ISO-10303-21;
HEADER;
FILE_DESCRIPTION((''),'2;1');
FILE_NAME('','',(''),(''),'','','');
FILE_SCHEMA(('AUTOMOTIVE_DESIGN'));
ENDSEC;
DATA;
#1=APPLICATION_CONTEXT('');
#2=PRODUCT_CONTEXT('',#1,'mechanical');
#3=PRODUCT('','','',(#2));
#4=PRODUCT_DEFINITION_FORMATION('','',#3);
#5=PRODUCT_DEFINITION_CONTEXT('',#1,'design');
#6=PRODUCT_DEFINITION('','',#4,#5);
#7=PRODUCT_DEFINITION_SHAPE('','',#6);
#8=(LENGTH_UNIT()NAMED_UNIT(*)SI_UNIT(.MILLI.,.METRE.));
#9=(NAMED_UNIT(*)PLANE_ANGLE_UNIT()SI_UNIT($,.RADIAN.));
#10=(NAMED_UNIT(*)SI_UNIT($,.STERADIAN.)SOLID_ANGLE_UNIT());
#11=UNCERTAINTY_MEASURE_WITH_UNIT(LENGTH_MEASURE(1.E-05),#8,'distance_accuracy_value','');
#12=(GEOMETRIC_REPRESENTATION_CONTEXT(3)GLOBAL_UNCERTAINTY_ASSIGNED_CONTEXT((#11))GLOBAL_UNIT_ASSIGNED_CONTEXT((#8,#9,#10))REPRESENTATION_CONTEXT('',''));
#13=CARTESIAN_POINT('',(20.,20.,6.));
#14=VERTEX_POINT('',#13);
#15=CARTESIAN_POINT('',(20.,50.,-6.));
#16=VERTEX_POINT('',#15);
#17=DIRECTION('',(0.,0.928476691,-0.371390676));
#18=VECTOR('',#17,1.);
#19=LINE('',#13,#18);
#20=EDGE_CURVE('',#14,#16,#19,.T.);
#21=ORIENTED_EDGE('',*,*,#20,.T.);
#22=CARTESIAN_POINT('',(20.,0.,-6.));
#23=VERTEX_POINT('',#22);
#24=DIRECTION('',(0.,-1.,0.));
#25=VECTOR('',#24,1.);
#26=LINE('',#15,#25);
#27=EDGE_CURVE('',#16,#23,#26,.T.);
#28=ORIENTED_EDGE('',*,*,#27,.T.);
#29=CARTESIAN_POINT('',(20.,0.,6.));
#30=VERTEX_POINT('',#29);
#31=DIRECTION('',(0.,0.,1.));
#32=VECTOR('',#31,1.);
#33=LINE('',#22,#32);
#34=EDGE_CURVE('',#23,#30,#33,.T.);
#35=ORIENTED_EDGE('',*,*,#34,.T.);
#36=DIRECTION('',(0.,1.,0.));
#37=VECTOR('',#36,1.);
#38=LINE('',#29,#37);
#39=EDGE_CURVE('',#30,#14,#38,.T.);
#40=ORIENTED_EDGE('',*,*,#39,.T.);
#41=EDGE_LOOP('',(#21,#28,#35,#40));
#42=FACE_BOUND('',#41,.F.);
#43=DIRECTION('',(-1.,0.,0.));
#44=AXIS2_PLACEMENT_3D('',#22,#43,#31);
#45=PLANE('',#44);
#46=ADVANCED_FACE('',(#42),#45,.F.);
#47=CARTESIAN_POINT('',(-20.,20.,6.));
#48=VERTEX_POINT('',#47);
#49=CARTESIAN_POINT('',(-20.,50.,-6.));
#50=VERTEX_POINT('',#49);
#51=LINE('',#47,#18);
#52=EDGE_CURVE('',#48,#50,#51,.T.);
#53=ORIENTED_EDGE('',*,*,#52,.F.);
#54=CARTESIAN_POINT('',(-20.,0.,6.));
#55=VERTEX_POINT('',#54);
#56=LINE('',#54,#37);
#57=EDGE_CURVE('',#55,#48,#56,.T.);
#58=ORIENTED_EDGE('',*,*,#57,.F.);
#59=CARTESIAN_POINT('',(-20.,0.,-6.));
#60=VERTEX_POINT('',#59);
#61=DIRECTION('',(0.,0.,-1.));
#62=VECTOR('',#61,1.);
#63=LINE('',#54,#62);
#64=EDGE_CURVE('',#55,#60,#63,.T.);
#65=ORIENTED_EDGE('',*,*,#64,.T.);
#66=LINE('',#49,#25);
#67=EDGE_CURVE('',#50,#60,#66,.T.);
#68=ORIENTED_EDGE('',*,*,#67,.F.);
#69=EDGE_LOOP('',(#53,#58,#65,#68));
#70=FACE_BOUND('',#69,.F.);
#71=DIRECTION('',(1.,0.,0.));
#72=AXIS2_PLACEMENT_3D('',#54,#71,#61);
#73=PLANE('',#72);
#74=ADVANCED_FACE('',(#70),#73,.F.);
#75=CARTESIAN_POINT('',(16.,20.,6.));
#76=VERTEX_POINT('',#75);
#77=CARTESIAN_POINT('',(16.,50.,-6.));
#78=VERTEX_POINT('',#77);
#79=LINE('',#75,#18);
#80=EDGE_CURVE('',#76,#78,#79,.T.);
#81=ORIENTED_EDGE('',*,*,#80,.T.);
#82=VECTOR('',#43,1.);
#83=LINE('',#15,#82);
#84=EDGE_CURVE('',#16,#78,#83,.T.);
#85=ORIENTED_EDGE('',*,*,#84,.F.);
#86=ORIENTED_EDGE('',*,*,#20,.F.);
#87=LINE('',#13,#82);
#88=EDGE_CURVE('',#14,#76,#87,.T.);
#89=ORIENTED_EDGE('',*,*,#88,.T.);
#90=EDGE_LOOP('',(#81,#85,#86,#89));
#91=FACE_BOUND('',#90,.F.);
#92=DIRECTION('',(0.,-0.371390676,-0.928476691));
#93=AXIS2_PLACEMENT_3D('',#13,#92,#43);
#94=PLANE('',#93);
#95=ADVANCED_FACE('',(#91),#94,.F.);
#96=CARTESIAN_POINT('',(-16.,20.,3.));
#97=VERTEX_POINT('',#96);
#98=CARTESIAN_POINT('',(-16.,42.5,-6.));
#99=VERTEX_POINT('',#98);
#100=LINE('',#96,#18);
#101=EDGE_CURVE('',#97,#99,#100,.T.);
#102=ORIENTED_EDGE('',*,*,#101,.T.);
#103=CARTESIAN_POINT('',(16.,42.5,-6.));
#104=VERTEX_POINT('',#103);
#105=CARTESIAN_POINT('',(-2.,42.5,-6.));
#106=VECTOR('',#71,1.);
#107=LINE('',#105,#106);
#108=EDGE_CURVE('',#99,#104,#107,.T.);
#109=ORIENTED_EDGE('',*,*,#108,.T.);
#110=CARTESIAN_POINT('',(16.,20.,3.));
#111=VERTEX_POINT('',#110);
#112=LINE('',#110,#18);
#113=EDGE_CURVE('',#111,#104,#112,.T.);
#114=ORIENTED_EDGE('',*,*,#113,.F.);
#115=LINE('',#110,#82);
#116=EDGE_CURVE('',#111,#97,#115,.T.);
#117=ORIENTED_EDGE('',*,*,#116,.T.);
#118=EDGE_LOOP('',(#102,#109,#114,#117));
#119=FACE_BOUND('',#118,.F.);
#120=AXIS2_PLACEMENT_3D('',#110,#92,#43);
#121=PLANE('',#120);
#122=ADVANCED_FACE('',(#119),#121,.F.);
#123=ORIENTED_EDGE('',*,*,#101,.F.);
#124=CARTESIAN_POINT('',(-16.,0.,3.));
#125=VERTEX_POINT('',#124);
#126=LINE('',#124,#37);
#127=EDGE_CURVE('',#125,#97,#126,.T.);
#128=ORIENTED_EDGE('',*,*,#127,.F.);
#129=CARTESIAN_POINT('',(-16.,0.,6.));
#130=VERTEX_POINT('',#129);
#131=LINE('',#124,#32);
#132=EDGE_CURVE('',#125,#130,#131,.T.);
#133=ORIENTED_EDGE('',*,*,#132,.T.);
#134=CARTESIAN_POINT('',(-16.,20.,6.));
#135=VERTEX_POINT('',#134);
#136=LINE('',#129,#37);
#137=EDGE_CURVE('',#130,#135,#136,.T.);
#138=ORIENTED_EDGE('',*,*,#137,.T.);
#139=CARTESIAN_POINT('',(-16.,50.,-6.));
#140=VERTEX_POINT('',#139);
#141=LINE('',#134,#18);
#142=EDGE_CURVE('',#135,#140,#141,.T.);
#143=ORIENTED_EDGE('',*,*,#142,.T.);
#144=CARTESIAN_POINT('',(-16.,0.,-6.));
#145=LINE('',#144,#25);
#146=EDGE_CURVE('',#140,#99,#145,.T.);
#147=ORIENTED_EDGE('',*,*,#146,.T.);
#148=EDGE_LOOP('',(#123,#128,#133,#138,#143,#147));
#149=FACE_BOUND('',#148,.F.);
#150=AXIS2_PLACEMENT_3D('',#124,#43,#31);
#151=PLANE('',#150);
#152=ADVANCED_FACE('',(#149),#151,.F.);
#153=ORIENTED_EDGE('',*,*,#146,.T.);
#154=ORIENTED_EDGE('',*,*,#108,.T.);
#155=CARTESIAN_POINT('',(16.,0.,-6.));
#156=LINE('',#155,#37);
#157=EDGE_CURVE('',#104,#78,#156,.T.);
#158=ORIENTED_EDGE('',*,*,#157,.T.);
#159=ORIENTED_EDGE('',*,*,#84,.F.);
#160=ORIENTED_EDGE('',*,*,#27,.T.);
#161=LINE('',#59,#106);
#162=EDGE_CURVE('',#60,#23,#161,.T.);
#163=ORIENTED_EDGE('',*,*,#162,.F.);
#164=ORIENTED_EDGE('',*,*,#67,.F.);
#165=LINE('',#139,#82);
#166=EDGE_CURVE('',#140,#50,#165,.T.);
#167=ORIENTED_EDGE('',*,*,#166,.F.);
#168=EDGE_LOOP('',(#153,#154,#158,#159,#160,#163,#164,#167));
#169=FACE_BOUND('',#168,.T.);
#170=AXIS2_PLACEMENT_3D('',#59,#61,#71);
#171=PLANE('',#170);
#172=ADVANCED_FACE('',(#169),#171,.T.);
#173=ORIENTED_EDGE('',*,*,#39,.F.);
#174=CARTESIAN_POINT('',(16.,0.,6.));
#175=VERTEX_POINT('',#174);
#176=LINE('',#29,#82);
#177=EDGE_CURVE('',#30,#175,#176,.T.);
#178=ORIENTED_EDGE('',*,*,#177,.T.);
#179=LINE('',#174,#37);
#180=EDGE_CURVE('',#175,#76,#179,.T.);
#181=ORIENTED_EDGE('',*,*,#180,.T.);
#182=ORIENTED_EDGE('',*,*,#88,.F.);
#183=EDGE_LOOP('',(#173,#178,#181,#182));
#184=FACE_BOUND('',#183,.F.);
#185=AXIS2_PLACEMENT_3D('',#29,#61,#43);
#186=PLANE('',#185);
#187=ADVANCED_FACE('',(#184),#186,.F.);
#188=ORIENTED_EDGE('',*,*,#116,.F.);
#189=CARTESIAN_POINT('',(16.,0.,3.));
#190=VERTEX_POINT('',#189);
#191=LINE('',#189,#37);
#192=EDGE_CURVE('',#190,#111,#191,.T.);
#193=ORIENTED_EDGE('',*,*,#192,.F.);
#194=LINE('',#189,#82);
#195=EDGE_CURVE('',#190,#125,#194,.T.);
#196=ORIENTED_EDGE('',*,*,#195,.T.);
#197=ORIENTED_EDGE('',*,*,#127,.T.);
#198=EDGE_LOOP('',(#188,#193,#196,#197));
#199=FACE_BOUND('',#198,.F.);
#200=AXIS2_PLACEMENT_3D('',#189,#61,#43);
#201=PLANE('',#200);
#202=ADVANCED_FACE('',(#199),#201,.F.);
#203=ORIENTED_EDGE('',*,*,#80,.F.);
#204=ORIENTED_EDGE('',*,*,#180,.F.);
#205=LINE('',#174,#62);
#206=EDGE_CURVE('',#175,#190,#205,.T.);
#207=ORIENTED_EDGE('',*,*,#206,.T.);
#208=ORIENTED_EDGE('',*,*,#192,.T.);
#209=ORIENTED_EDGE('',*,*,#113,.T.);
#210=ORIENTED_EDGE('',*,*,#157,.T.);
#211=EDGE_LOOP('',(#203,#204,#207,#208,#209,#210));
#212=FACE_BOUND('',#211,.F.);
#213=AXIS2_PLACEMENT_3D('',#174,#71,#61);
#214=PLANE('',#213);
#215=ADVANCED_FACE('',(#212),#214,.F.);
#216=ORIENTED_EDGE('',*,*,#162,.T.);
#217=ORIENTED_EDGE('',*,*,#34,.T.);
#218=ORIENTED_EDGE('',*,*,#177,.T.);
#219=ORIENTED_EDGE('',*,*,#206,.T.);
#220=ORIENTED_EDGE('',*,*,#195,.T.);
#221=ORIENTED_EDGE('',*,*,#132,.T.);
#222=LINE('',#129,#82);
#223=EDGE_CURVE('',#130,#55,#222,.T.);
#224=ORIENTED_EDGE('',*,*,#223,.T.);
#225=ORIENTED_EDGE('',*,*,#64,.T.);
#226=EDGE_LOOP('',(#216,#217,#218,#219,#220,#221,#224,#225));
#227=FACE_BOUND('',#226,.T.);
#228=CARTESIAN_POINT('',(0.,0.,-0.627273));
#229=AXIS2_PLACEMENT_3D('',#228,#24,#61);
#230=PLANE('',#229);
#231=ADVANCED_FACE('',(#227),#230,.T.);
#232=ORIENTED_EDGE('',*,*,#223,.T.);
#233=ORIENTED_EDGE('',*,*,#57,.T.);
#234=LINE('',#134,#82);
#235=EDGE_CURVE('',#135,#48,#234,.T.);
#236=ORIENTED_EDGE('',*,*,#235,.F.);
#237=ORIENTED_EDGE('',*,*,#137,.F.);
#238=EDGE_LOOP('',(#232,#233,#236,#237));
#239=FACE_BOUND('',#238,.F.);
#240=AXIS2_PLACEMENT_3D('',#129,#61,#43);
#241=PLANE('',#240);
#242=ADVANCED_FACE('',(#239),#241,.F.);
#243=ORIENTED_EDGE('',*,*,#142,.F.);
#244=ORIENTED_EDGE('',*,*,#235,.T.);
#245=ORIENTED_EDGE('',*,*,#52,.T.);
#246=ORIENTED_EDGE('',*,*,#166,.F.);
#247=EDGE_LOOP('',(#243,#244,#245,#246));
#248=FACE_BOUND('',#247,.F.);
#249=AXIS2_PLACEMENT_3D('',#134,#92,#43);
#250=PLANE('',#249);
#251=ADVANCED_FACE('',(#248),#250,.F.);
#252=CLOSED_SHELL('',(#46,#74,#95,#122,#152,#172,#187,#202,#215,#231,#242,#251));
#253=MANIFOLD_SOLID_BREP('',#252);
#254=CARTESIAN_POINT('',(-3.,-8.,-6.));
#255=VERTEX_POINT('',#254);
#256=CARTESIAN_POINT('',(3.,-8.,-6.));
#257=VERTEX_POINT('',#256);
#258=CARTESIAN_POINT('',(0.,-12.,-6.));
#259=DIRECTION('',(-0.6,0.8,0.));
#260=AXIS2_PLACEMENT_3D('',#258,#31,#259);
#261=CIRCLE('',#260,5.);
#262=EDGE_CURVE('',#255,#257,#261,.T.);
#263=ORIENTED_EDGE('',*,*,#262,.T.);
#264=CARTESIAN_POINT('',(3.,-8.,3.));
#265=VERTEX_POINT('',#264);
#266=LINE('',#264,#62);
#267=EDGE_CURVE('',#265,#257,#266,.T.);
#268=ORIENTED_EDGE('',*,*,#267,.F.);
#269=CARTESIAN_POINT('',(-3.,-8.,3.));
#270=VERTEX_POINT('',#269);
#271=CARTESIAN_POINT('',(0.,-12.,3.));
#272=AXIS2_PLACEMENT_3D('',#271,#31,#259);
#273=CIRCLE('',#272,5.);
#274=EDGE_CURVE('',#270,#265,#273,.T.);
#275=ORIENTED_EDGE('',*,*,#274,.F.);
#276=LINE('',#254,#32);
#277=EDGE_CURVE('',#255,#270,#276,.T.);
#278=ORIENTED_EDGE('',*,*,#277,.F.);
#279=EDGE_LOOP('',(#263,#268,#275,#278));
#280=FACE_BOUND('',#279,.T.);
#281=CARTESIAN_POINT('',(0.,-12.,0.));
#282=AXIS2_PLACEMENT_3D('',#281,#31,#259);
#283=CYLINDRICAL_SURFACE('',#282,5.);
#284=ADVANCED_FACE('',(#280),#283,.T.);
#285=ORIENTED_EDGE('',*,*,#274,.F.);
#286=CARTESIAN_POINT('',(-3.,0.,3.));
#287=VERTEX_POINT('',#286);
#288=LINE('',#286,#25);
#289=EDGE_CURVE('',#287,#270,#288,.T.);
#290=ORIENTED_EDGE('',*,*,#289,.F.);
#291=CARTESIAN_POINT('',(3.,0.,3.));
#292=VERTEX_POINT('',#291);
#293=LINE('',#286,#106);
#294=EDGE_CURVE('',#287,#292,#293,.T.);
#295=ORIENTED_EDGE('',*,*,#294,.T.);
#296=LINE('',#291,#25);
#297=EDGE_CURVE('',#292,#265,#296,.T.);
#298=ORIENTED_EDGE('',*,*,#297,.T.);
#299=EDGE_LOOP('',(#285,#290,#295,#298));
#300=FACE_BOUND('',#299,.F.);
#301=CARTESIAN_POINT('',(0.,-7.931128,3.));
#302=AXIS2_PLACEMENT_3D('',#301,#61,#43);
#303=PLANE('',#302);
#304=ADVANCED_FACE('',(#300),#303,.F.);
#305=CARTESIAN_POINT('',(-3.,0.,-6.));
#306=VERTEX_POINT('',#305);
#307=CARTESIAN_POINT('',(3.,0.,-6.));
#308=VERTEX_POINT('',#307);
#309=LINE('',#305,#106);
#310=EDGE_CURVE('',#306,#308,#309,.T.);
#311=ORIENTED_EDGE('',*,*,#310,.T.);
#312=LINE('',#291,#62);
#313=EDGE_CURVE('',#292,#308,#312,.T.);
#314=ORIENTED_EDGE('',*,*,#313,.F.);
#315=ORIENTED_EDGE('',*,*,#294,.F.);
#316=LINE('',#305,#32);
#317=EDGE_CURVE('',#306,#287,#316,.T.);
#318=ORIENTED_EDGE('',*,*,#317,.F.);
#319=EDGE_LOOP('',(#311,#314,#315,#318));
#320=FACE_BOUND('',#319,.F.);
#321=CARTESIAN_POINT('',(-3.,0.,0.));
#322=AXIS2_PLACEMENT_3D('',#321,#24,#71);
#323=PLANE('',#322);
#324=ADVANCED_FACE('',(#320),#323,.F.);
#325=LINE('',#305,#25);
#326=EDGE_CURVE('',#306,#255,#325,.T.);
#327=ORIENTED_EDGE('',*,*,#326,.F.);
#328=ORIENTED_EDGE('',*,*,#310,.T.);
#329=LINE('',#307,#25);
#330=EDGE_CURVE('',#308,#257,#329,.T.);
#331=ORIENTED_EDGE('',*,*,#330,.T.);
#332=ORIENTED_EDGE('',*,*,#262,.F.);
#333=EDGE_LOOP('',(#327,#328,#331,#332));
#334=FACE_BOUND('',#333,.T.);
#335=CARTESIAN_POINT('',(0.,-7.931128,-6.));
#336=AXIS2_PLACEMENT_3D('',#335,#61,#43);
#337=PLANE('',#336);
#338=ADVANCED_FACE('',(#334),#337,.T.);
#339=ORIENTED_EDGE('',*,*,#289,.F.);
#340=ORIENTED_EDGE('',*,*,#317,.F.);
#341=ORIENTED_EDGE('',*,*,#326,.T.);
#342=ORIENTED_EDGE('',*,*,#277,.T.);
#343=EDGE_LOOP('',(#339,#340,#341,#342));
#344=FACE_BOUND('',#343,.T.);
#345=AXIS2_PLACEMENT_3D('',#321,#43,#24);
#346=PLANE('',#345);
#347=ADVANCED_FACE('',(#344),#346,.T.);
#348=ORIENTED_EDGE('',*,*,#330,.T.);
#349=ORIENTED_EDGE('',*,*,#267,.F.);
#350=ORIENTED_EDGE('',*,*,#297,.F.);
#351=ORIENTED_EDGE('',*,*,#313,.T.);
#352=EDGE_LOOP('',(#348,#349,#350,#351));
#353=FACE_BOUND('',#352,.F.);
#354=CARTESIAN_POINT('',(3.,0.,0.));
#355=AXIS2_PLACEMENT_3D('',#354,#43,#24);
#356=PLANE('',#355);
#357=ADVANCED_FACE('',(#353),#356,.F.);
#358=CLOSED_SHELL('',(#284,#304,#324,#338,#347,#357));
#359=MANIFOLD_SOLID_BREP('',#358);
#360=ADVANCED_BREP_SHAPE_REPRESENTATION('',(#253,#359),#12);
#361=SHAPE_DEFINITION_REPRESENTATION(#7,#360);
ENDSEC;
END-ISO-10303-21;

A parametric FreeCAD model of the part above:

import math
import FreeCAD as App
import Part
import Sketcher
Q = App.Units.Quantity


def add_polygon(sketch, points):
    """Adds a closed chain of lines whose ends are joined by coincident constraints."""
    first, n = sketch.GeometryCount, len(points)
    for a, b in zip(points, points[1:] + points[:1]):
        sketch.addGeometry(Part.LineSegment(App.Vector(*a, 0), App.Vector(*b, 0)), False)
    for i in range(n):
        sketch.addConstraint(Sketcher.Constraint("Coincident", first + i, 2, first + (i + 1) % n, 1))

doc = App.newDocument("Part")
body = doc.addObject("PartDesign::Body", "Body")

# Sketch on XZ plane
sketch1 = body.newObject("Sketcher::SketchObject", "Sketch")
sketch1.AttachmentSupport = (doc.getObject("XZ_Plane"), [""])
sketch1.MapMode = "FlatFace"
add_polygon(sketch1, [(-20, 6), (-20, -6), (20, -6), (20, 6), (16, 6), (16, 3), (-16, 3), (-16, 6)])  # lines 0-7
sketch1.addConstraint([
    Sketcher.Constraint("Vertical", 0),
    Sketcher.Constraint("Horizontal", 1),
    Sketcher.Constraint("Vertical", 2),
    Sketcher.Constraint("Horizontal", 3),
    Sketcher.Constraint("Vertical", 4),
    Sketcher.Constraint("Horizontal", 5),
    Sketcher.Constraint("Vertical", 6),
    Sketcher.Constraint("Horizontal", 7),
    Sketcher.Constraint("Symmetric", 0, 2, 2, 2, -1, 1),
    Sketcher.Constraint("Symmetric", 3, 2, 6, 2, -2),
    Sketcher.Constraint("DistanceX", 1, 1, 1, 2, Q("40 mm")),
    Sketcher.Constraint("DistanceX", 3, 2, 3, 1, Q("4 mm")),
    Sketcher.Constraint("DistanceY", 0, 2, 0, 1, Q("12 mm")),
    Sketcher.Constraint("DistanceY", 4, 2, 4, 1, Q("3 mm")),
])

# Sketch on YZ plane
sketch2 = body.newObject("Sketcher::SketchObject", "Sketch001")
sketch2.AttachmentSupport = (doc.getObject("YZ_Plane"), [""])
sketch2.MapMode = "FlatFace"
sketch2.addGeometry([
    Part.LineSegment(App.Vector(0, 0, 0), App.Vector(20, 0, 0)),
    Part.LineSegment(App.Vector(20, 0, 0), App.Vector(50, -12, 0)),
], False)
sketch2.addConstraint([
    Sketcher.Constraint("Coincident", 0, 2, 1, 1),
    Sketcher.Constraint("Horizontal", 0),
    Sketcher.Constraint("Coincident", 0, 1, -1, 1),
    Sketcher.Constraint("DistanceX", 0, 1, 0, 2, Q("20 mm")),
    Sketcher.Constraint("DistanceX", -1, 1, 1, 2, Q("50 mm")),
    Sketcher.Constraint("DistanceY", 1, 2, -1, 1, Q("12 mm")),
])
doc.recompute()

additivepipe = body.newObject("PartDesign::AdditivePipe", "AdditivePipe")
additivepipe.Profile = sketch1
additivepipe.Spine = (sketch2, ["Edge1", "Edge2"])

# Sketch on XZ plane
sketch3 = body.newObject("Sketcher::SketchObject", "Sketch002")
sketch3.AttachmentSupport = (doc.getObject("XZ_Plane"), [""])
sketch3.MapMode = "FlatFace"
add_polygon(sketch3, [(-20, -6), (-20, -18), (20, -18), (20, -6)])  # lines 0-3
sketch3.addConstraint([
    Sketcher.Constraint("Vertical", 0),
    Sketcher.Constraint("Horizontal", 1),
    Sketcher.Constraint("Vertical", 2),
    Sketcher.Constraint("Horizontal", 3),
    Sketcher.Constraint("DistanceX", 1, 1, 1, 2, Q("40 mm")),
    Sketcher.Constraint("DistanceY", 0, 2, 0, 1, Q("12 mm")),
    Sketcher.Constraint("DistanceX", 0, 2, -1, 1, Q("20 mm")),
    Sketcher.Constraint("DistanceY", 0, 2, -1, 1, Q("18 mm")),
])
pocket1 = body.newObject("PartDesign::Pocket", "Pocket")
pocket1.Profile = sketch3
pocket1.Type = "ThroughAll"
pocket1.Midplane = True

# Sketch on XZ plane
sketch4 = body.newObject("Sketcher::SketchObject", "Sketch003")
sketch4.AttachmentSupport = (doc.getObject("XZ_Plane"), [""])
sketch4.MapMode = "FlatFace"
add_polygon(sketch4, [(-20, -6), (-20, -18), (20, -18), (20, -6)])  # lines 0-3
sketch4.addConstraint([
    Sketcher.Constraint("Vertical", 0),
    Sketcher.Constraint("Horizontal", 1),
    Sketcher.Constraint("Vertical", 2),
    Sketcher.Constraint("Horizontal", 3),
    Sketcher.Constraint("DistanceX", 1, 1, 1, 2, Q("40 mm")),
    Sketcher.Constraint("DistanceY", 0, 2, 0, 1, Q("12 mm")),
    Sketcher.Constraint("DistanceX", 0, 2, -1, 1, Q("20 mm")),
    Sketcher.Constraint("DistanceY", 0, 2, -1, 1, Q("18 mm")),
])
pocket2 = body.newObject("PartDesign::Pocket", "Pocket001")
pocket2.Profile = sketch4
pocket2.Type = "ThroughAll"
pocket2.Midplane = True
body2 = doc.addObject("PartDesign::Body", "Body001")

# Sketch on XY plane
sketch5 = body2.newObject("Sketcher::SketchObject", "Sketch004")
sketch5.AttachmentSupport = (doc.getObject("XY_Plane001"), [""])
sketch5.MapMode = "FlatFace"
sketch5.addGeometry([
    Part.LineSegment(App.Vector(3, 0, 0), App.Vector(-3, 0, 0)),
    Part.LineSegment(App.Vector(-3, 0, 0), App.Vector(-3, -8, 0)),
    Part.ArcOfCircle(Part.Circle(App.Vector(0, -12, 0), App.Vector(0, 0, 1), 5), math.radians(126.869898), math.radians(413.130102)),
    Part.LineSegment(App.Vector(3, -8, 0), App.Vector(3, 0, 0)),
], False)
sketch5.addConstraint([
    Sketcher.Constraint("Coincident", 0, 2, 1, 1),
    Sketcher.Constraint("Coincident", 1, 2, 2, 1),
    Sketcher.Constraint("Coincident", 2, 2, 3, 1),
    Sketcher.Constraint("Coincident", 3, 2, 0, 1),
    Sketcher.Constraint("Horizontal", 0),
    Sketcher.Constraint("Vertical", 1),
    Sketcher.Constraint("Vertical", 3),
    Sketcher.Constraint("Symmetric", 0, 2, 3, 2, -1, 1),
    Sketcher.Constraint("PointOnObject", 2, 3, -2),
    Sketcher.Constraint("Radius", 2, Q("5 mm")),
    Sketcher.Constraint("DistanceX", 0, 2, 0, 1, Q("6 mm")),
    Sketcher.Constraint("DistanceY", 1, 2, 1, 1, Q("8 mm")),
])
pad1 = body2.newObject("PartDesign::Pad", "Pad")
pad1.Profile = sketch5
pad1.Type = "TwoLengths"
pad1.Length = 3
pad1.Length2 = 6

doc.recompute()
